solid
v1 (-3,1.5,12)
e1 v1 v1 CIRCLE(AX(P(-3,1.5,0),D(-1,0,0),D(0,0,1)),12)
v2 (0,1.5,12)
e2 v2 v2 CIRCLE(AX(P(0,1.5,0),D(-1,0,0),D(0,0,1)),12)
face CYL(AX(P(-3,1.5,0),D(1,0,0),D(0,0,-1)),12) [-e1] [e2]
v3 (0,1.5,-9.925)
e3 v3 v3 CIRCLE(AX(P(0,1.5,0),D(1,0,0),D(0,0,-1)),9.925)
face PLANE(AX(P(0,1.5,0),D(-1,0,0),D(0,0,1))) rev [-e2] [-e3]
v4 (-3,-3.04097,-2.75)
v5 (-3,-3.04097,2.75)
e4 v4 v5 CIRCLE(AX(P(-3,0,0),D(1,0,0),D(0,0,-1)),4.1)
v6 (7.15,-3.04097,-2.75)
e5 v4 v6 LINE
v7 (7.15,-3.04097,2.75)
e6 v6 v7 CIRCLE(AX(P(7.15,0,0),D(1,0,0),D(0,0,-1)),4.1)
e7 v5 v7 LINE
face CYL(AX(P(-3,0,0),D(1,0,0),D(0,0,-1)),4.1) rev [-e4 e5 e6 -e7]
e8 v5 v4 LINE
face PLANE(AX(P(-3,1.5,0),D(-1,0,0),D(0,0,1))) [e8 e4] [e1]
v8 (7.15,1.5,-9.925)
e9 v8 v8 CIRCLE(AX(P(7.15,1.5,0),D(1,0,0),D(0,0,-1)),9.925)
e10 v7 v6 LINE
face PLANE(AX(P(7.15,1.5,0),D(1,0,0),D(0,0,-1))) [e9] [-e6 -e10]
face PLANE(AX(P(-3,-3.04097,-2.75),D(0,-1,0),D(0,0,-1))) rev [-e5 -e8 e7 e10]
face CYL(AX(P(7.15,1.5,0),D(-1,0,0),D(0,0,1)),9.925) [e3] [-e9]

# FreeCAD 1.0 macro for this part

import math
import FreeCAD as App
import Part
import Sketcher
from FreeCAD import Vector

doc = App.newDocument("Part")
body = doc.addObject("PartDesign::Body", "Body")

# Sketch on YZ plane
sketch1 = body.newObject("Sketcher::SketchObject", "Sketch")
sketch1.AttachmentSupport = (doc.getObject("YZ_Plane"), [""])
sketch1.MapMode = "FlatFace"
sketch1.addGeometry(Part.Circle(Vector(1.5, 0, 0), Vector(0, 0, 1), 9.925), False)
sketch1.addConstraint([
    Sketcher.Constraint("PointOnObject", 0, 3, -1),
    Sketcher.Constraint("Diameter", 0, 19.85),
    Sketcher.Constraint("DistanceX", -1, 1, 0, 3, 1.5),
])
pad1 = body.newObject("PartDesign::Pad", "Pad")
pad1.Profile = sketch1
pad1.Length = 7.15

# Sketch on YZ plane
sketch2 = body.newObject("Sketcher::SketchObject", "Sketch001")
sketch2.AttachmentSupport = (doc.getObject("YZ_Plane"), [""])
sketch2.MapMode = "FlatFace"
sketch2.addGeometry(Part.Circle(Vector(1.5, 0, 0), Vector(0, 0, 1), 12), False)
sketch2.addConstraint([
    Sketcher.Constraint("PointOnObject", 0, 3, -1),
    Sketcher.Constraint("Diameter", 0, 24.0),
    Sketcher.Constraint("DistanceX", -1, 1, 0, 3, 1.5),
])
pad2 = body.newObject("PartDesign::Pad", "Pad001")
pad2.Profile = sketch2
pad2.Length = 3
pad2.Reversed = True

# Sketch on YZ plane
sketch3 = body.newObject("Sketcher::SketchObject", "Sketch002")
sketch3.AttachmentSupport = (doc.getObject("YZ_Plane"), [""])
sketch3.MapMode = "FlatFace"
sketch3.AttachmentOffset = App.Placement(Vector(0, 0, 7.15), App.Rotation())
sketch3.addGeometry([
    Part.LineSegment(Vector(-3.04097, 2.75, 0), Vector(-3.04097, -2.75, 0)),
    Part.ArcOfCircle(Part.Circle(Vector(0, 0, 0), Vector(0, 0, 1), 4.1), math.radians(-137.876437), math.radians(137.876437)),
], False)
sketch3.addConstraint([
    Sketcher.Constraint("Coincident", 0, 1, 1, 2),
    Sketcher.Constraint("Coincident", 1, 1, 0, 2),
    Sketcher.Constraint("Vertical", 0),
    Sketcher.Constraint("Coincident", 1, 3, -1, 1),
    Sketcher.Constraint("Radius", 1, 4.1),
    Sketcher.Constraint("DistanceY", 0, 2, 0, 1, 5.5),
])
pocket1 = body.newObject("PartDesign::Pocket", "Pocket")
pocket1.Profile = sketch3
pocket1.Type = "ThroughAll"
pocket1.Midplane = True

doc.recompute()
